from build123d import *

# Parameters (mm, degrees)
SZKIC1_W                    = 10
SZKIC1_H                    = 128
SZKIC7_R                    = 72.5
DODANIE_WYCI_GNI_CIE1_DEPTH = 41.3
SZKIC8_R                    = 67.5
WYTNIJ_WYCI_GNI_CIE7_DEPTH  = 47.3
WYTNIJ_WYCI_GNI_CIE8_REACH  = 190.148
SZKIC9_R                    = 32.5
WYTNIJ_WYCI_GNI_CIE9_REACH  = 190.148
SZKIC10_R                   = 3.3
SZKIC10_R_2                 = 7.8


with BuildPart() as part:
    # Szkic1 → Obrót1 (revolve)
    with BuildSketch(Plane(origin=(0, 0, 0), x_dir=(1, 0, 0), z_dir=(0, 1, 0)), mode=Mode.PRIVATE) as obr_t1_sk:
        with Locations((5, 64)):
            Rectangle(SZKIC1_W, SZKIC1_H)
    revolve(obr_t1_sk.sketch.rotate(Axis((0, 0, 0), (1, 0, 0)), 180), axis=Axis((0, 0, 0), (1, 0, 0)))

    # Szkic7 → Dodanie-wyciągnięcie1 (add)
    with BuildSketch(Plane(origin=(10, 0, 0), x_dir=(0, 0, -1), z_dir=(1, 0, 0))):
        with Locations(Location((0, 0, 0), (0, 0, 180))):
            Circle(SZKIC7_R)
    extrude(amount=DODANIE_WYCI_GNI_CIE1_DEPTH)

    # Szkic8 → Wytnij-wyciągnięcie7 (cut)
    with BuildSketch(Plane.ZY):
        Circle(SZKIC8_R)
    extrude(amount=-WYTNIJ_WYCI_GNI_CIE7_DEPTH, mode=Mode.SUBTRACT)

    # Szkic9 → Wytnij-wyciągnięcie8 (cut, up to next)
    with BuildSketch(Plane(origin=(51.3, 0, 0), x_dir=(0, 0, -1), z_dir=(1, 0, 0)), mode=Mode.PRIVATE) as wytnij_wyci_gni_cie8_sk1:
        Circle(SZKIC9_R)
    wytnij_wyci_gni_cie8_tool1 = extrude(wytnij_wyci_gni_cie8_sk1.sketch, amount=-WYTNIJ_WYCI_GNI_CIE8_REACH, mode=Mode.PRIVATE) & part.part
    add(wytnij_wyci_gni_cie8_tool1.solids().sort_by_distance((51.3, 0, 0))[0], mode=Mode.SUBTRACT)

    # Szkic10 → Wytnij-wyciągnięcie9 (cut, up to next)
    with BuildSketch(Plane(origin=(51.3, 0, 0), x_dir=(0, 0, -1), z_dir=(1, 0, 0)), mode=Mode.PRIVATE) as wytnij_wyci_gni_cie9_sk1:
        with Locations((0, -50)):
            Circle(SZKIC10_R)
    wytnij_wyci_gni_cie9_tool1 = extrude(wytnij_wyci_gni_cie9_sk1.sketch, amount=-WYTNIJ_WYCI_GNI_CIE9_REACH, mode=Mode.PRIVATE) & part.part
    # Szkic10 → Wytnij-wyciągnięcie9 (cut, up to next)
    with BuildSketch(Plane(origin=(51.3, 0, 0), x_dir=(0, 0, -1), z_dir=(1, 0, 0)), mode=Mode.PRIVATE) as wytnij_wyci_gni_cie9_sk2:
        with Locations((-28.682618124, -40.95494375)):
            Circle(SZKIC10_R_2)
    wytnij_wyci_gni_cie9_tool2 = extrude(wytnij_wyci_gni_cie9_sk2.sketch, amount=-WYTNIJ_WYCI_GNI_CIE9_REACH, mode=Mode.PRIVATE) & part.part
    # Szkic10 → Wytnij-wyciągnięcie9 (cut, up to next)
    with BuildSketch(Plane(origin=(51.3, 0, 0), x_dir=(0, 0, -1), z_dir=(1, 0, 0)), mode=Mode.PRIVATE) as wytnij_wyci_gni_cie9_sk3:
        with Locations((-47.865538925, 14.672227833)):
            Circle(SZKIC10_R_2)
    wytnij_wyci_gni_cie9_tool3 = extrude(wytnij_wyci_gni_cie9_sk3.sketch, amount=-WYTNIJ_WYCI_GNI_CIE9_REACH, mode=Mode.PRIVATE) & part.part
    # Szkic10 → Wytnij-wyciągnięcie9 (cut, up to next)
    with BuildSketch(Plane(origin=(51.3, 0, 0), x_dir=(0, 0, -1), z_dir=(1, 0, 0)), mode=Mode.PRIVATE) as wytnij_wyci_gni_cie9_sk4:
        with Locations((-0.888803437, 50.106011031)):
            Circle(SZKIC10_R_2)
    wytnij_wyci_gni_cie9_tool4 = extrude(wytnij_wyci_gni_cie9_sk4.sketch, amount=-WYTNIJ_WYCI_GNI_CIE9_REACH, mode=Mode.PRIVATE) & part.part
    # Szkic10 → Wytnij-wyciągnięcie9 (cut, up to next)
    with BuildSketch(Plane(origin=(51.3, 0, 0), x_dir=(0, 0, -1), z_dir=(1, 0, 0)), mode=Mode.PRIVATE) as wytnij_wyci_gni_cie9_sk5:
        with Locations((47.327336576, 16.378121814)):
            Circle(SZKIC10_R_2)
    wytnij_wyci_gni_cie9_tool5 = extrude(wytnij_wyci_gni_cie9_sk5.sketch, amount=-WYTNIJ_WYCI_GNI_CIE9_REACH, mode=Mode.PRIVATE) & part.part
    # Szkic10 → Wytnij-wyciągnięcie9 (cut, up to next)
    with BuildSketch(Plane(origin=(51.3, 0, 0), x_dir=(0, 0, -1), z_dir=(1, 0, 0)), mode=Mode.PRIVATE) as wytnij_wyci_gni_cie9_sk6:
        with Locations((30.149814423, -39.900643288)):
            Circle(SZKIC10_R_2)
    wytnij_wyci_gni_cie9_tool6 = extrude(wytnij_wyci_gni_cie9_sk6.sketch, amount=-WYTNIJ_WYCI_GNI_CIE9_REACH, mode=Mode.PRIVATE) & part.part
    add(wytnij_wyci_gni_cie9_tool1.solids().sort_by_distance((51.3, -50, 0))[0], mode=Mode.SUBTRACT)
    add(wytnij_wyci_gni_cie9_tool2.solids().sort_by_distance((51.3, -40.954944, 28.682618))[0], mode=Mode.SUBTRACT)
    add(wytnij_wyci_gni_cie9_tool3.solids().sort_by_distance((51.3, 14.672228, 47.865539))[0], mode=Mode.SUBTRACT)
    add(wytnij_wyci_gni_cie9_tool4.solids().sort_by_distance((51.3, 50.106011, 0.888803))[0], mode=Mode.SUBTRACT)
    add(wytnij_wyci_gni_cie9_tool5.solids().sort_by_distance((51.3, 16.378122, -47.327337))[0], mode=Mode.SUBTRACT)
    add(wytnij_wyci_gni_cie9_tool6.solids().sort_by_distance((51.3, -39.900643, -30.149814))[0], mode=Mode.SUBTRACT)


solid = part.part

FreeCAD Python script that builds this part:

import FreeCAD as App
import Part
import Sketcher
from FreeCAD import Vector

doc = App.newDocument("Part")
body = doc.addObject("PartDesign::Body", "Body")

# Sketch on XZ plane
sketch1 = doc.addObject("Sketcher::SketchObject", "Sketch")
body.addObject(sketch1)
sketch1.AttachmentSupport = (doc.XZ_Plane, [""])
sketch1.MapMode = "FlatFace"
sketch1.addGeometry(Part.LineSegment(Vector(0, -128, 0), Vector(0, 0, 0)), False)
sketch1.addGeometry(Part.LineSegment(Vector(0, 0, 0), Vector(10, 0, 0)), False)
sketch1.addGeometry(Part.LineSegment(Vector(10, 0, 0), Vector(10, -128, 0)), False)
sketch1.addGeometry(Part.LineSegment(Vector(10, -128, 0), Vector(0, -128, 0)), False)
sketch1.addConstraint(Sketcher.Constraint("Coincident", 0, 2, 1, 1))
sketch1.addConstraint(Sketcher.Constraint("Coincident", 1, 2, 2, 1))
sketch1.addConstraint(Sketcher.Constraint("Coincident", 2, 2, 3, 1))
sketch1.addConstraint(Sketcher.Constraint("Coincident", 3, 2, 0, 1))
sketch1.addConstraint(Sketcher.Constraint("Vertical", 0))
sketch1.addConstraint(Sketcher.Constraint("Horizontal", 1))
sketch1.addConstraint(Sketcher.Constraint("Vertical", 2))
sketch1.addConstraint(Sketcher.Constraint("Horizontal", 3))
sketch1.addConstraint(Sketcher.Constraint("Coincident", 0, 2, -1, 1))
sketch1.addConstraint(Sketcher.Constraint("DistanceX", 1, 1, 1, 2, 10.0))
sketch1.addConstraint(Sketcher.Constraint("DistanceY", 0, 1, 0, 2, 128.0))
revolution = doc.addObject("PartDesign::Revolution", "Revolution")
body.addObject(revolution)
revolution.Profile = sketch1
revolution.ReferenceAxis = (sketch1, ["H_Axis"])
revolution.Angle = 360

# Sketch on YZ plane
sketch2 = doc.addObject("Sketcher::SketchObject", "Sketch001")
body.addObject(sketch2)
sketch2.AttachmentSupport = (doc.YZ_Plane, [""])
sketch2.MapMode = "FlatFace"
sketch2.AttachmentOffset = App.Placement(Vector(0, 0, 10), App.Rotation())
sketch2.addGeometry(Part.Circle(Vector(0, 0, 0), Vector(0, 0, 1), 72), False)
sketch2.addConstraint(Sketcher.Constraint("Coincident", 0, 3, -1, 1))
sketch2.addConstraint(Sketcher.Constraint("Diameter", 0, 145.0))
pad1 = doc.addObject("PartDesign::Pad", "Pad")
body.addObject(pad1)
pad1.Profile = sketch2
pad1.Length = 41.3

# Sketch on YZ plane
sketch3 = doc.addObject("Sketcher::SketchObject", "Sketch002")
body.addObject(sketch3)
sketch3.AttachmentSupport = (doc.YZ_Plane, [""])
sketch3.MapMode = "FlatFace"
sketch3.addGeometry(Part.Circle(Vector(0, 0, 0), Vector(0, 0, 1), 68), False)
sketch3.addConstraint(Sketcher.Constraint("Coincident", 0, 3, -1, 1))
sketch3.addConstraint(Sketcher.Constraint("Diameter", 0, 135.0))
pocket1 = doc.addObject("PartDesign::Pocket", "Pocket")
body.addObject(pocket1)
pocket1.Profile = sketch3
pocket1.Length = 47.3
pocket1.Reversed = True

# Sketch on YZ plane
sketch4 = doc.addObject("Sketcher::SketchObject", "Sketch003")
body.addObject(sketch4)
sketch4.AttachmentSupport = (doc.YZ_Plane, [""])
sketch4.MapMode = "FlatFace"
sketch4.AttachmentOffset = App.Placement(Vector(0, 0, 51.3), App.Rotation())
sketch4.addGeometry(Part.Circle(Vector(0, 0, 0), Vector(0, 0, 1), 32), False)
sketch4.addConstraint(Sketcher.Constraint("Coincident", 0, 3, -1, 1))
sketch4.addConstraint(Sketcher.Constraint("Diameter", 0, 65.0))
pocket2 = doc.addObject("PartDesign::Pocket", "Pocket001")
body.addObject(pocket2)
pocket2.Profile = sketch4
pocket2.Type = "UpToFirst"

# Sketch on YZ plane
sketch5 = doc.addObject("Sketcher::SketchObject", "Sketch004")
body.addObject(sketch5)
sketch5.AttachmentSupport = (doc.YZ_Plane, [""])
sketch5.MapMode = "FlatFace"
sketch5.AttachmentOffset = App.Placement(Vector(0, 0, 51.3), App.Rotation())
sketch5.addGeometry(Part.Circle(Vector(-50, 0, 0), Vector(0, 0, 1), 3.3), False)
sketch5.addConstraint(Sketcher.Constraint("PointOnObject", 0, 3, -1))
sketch5.addConstraint(Sketcher.Constraint("Diameter", 0, 6.6))
sketch5.addConstraint(Sketcher.Constraint("DistanceX", 0, 3, -1, 1, 50.0))
pocket3 = doc.addObject("PartDesign::Pocket", "Pocket002")
body.addObject(pocket3)
pocket3.Profile = sketch5
pocket3.Type = "UpToFirst"

# Sketch on YZ plane
sketch6 = doc.addObject("Sketcher::SketchObject", "Sketch005")
body.addObject(sketch6)
sketch6.AttachmentSupport = (doc.YZ_Plane, [""])
sketch6.MapMode = "FlatFace"
sketch6.AttachmentOffset = App.Placement(Vector(0, 0, 51.3), App.Rotation())
sketch6.addGeometry(Part.Circle(Vector(-41, 29, 0), Vector(0, 0, 1), 8), False)
sketch6.addConstraint(Sketcher.Constraint("Diameter", 0, 15.6))
sketch6.addConstraint(Sketcher.Constraint("DistanceY", -1, 1, 0, 3, 28.682618))
sketch6.addConstraint(Sketcher.Constraint("DistanceX", 0, 3, -1, 1, 40.954944))
pocket4 = doc.addObject("PartDesign::Pocket", "Pocket003")
body.addObject(pocket4)
pocket4.Profile = sketch6
pocket4.Type = "UpToFirst"

# Sketch on YZ plane
sketch7 = doc.addObject("Sketcher::SketchObject", "Sketch006")
body.addObject(sketch7)
sketch7.AttachmentSupport = (doc.YZ_Plane, [""])
sketch7.MapMode = "FlatFace"
sketch7.AttachmentOffset = App.Placement(Vector(0, 0, 51.3), App.Rotation())
sketch7.addGeometry(Part.Circle(Vector(15, 48, 0), Vector(0, 0, 1), 8), False)
sketch7.addConstraint(Sketcher.Constraint("Diameter", 0, 15.6))
sketch7.addConstraint(Sketcher.Constraint("DistanceY", -1, 1, 0, 3, 47.865539))
sketch7.addConstraint(Sketcher.Constraint("DistanceX", -1, 1, 0, 3, 14.672228))
pocket5 = doc.addObject("PartDesign::Pocket", "Pocket004")
body.addObject(pocket5)
pocket5.Profile = sketch7
pocket5.Type = "UpToFirst"

# Sketch on YZ plane
sketch8 = doc.addObject("Sketcher::SketchObject", "Sketch007")
body.addObject(sketch8)
sketch8.AttachmentSupport = (doc.YZ_Plane, [""])
sketch8.MapMode = "FlatFace"
sketch8.AttachmentOffset = App.Placement(Vector(0, 0, 51.3), App.Rotation())
sketch8.addGeometry(Part.Circle(Vector(50, 1, 0), Vector(0, 0, 1), 8), False)
sketch8.addConstraint(Sketcher.Constraint("Diameter", 0, 15.6))
sketch8.addConstraint(Sketcher.Constraint("DistanceX", -1, 1, 0, 3, 50.106011))
sketch8.addConstraint(Sketcher.Constraint("DistanceY", -1, 1, 0, 3, 0.888803))
pocket6 = doc.addObject("PartDesign::Pocket", "Pocket005")
body.addObject(pocket6)
pocket6.Profile = sketch8
pocket6.Type = "UpToFirst"

# Sketch on YZ plane
sketch9 = doc.addObject("Sketcher::SketchObject", "Sketch008")
body.addObject(sketch9)
sketch9.AttachmentSupport = (doc.YZ_Plane, [""])
sketch9.MapMode = "FlatFace"
sketch9.AttachmentOffset = App.Placement(Vector(0, 0, 51.3), App.Rotation())
sketch9.addGeometry(Part.Circle(Vector(16, -47, 0), Vector(0, 0, 1), 8), False)
sketch9.addConstraint(Sketcher.Constraint("Diameter", 0, 15.6))
sketch9.addConstraint(Sketcher.Constraint("DistanceX", -1, 1, 0, 3, 16.378122))
sketch9.addConstraint(Sketcher.Constraint("DistanceY", 0, 3, -1, 1, 47.327337))
pocket7 = doc.addObject("PartDesign::Pocket", "Pocket006")
body.addObject(pocket7)
pocket7.Profile = sketch9
pocket7.Type = "UpToFirst"

# Sketch on YZ plane
sketch10 = doc.addObject("Sketcher::SketchObject", "Sketch009")
body.addObject(sketch10)
sketch10.AttachmentSupport = (doc.YZ_Plane, [""])
sketch10.MapMode = "FlatFace"
sketch10.AttachmentOffset = App.Placement(Vector(0, 0, 51.3), App.Rotation())
sketch10.addGeometry(Part.Circle(Vector(-40, -30, 0), Vector(0, 0, 1), 8), False)
sketch10.addConstraint(Sketcher.Constraint("Diameter", 0, 15.6))
sketch10.addConstraint(Sketcher.Constraint("DistanceX", 0, 3, -1, 1, 39.900643))
sketch10.addConstraint(Sketcher.Constraint("DistanceY", 0, 3, -1, 1, 30.149814))
pocket8 = doc.addObject("PartDesign::Pocket", "Pocket007")
body.addObject(pocket8)
pocket8.Profile = sketch10
pocket8.Type = "UpToFirst"

doc.recompute()
